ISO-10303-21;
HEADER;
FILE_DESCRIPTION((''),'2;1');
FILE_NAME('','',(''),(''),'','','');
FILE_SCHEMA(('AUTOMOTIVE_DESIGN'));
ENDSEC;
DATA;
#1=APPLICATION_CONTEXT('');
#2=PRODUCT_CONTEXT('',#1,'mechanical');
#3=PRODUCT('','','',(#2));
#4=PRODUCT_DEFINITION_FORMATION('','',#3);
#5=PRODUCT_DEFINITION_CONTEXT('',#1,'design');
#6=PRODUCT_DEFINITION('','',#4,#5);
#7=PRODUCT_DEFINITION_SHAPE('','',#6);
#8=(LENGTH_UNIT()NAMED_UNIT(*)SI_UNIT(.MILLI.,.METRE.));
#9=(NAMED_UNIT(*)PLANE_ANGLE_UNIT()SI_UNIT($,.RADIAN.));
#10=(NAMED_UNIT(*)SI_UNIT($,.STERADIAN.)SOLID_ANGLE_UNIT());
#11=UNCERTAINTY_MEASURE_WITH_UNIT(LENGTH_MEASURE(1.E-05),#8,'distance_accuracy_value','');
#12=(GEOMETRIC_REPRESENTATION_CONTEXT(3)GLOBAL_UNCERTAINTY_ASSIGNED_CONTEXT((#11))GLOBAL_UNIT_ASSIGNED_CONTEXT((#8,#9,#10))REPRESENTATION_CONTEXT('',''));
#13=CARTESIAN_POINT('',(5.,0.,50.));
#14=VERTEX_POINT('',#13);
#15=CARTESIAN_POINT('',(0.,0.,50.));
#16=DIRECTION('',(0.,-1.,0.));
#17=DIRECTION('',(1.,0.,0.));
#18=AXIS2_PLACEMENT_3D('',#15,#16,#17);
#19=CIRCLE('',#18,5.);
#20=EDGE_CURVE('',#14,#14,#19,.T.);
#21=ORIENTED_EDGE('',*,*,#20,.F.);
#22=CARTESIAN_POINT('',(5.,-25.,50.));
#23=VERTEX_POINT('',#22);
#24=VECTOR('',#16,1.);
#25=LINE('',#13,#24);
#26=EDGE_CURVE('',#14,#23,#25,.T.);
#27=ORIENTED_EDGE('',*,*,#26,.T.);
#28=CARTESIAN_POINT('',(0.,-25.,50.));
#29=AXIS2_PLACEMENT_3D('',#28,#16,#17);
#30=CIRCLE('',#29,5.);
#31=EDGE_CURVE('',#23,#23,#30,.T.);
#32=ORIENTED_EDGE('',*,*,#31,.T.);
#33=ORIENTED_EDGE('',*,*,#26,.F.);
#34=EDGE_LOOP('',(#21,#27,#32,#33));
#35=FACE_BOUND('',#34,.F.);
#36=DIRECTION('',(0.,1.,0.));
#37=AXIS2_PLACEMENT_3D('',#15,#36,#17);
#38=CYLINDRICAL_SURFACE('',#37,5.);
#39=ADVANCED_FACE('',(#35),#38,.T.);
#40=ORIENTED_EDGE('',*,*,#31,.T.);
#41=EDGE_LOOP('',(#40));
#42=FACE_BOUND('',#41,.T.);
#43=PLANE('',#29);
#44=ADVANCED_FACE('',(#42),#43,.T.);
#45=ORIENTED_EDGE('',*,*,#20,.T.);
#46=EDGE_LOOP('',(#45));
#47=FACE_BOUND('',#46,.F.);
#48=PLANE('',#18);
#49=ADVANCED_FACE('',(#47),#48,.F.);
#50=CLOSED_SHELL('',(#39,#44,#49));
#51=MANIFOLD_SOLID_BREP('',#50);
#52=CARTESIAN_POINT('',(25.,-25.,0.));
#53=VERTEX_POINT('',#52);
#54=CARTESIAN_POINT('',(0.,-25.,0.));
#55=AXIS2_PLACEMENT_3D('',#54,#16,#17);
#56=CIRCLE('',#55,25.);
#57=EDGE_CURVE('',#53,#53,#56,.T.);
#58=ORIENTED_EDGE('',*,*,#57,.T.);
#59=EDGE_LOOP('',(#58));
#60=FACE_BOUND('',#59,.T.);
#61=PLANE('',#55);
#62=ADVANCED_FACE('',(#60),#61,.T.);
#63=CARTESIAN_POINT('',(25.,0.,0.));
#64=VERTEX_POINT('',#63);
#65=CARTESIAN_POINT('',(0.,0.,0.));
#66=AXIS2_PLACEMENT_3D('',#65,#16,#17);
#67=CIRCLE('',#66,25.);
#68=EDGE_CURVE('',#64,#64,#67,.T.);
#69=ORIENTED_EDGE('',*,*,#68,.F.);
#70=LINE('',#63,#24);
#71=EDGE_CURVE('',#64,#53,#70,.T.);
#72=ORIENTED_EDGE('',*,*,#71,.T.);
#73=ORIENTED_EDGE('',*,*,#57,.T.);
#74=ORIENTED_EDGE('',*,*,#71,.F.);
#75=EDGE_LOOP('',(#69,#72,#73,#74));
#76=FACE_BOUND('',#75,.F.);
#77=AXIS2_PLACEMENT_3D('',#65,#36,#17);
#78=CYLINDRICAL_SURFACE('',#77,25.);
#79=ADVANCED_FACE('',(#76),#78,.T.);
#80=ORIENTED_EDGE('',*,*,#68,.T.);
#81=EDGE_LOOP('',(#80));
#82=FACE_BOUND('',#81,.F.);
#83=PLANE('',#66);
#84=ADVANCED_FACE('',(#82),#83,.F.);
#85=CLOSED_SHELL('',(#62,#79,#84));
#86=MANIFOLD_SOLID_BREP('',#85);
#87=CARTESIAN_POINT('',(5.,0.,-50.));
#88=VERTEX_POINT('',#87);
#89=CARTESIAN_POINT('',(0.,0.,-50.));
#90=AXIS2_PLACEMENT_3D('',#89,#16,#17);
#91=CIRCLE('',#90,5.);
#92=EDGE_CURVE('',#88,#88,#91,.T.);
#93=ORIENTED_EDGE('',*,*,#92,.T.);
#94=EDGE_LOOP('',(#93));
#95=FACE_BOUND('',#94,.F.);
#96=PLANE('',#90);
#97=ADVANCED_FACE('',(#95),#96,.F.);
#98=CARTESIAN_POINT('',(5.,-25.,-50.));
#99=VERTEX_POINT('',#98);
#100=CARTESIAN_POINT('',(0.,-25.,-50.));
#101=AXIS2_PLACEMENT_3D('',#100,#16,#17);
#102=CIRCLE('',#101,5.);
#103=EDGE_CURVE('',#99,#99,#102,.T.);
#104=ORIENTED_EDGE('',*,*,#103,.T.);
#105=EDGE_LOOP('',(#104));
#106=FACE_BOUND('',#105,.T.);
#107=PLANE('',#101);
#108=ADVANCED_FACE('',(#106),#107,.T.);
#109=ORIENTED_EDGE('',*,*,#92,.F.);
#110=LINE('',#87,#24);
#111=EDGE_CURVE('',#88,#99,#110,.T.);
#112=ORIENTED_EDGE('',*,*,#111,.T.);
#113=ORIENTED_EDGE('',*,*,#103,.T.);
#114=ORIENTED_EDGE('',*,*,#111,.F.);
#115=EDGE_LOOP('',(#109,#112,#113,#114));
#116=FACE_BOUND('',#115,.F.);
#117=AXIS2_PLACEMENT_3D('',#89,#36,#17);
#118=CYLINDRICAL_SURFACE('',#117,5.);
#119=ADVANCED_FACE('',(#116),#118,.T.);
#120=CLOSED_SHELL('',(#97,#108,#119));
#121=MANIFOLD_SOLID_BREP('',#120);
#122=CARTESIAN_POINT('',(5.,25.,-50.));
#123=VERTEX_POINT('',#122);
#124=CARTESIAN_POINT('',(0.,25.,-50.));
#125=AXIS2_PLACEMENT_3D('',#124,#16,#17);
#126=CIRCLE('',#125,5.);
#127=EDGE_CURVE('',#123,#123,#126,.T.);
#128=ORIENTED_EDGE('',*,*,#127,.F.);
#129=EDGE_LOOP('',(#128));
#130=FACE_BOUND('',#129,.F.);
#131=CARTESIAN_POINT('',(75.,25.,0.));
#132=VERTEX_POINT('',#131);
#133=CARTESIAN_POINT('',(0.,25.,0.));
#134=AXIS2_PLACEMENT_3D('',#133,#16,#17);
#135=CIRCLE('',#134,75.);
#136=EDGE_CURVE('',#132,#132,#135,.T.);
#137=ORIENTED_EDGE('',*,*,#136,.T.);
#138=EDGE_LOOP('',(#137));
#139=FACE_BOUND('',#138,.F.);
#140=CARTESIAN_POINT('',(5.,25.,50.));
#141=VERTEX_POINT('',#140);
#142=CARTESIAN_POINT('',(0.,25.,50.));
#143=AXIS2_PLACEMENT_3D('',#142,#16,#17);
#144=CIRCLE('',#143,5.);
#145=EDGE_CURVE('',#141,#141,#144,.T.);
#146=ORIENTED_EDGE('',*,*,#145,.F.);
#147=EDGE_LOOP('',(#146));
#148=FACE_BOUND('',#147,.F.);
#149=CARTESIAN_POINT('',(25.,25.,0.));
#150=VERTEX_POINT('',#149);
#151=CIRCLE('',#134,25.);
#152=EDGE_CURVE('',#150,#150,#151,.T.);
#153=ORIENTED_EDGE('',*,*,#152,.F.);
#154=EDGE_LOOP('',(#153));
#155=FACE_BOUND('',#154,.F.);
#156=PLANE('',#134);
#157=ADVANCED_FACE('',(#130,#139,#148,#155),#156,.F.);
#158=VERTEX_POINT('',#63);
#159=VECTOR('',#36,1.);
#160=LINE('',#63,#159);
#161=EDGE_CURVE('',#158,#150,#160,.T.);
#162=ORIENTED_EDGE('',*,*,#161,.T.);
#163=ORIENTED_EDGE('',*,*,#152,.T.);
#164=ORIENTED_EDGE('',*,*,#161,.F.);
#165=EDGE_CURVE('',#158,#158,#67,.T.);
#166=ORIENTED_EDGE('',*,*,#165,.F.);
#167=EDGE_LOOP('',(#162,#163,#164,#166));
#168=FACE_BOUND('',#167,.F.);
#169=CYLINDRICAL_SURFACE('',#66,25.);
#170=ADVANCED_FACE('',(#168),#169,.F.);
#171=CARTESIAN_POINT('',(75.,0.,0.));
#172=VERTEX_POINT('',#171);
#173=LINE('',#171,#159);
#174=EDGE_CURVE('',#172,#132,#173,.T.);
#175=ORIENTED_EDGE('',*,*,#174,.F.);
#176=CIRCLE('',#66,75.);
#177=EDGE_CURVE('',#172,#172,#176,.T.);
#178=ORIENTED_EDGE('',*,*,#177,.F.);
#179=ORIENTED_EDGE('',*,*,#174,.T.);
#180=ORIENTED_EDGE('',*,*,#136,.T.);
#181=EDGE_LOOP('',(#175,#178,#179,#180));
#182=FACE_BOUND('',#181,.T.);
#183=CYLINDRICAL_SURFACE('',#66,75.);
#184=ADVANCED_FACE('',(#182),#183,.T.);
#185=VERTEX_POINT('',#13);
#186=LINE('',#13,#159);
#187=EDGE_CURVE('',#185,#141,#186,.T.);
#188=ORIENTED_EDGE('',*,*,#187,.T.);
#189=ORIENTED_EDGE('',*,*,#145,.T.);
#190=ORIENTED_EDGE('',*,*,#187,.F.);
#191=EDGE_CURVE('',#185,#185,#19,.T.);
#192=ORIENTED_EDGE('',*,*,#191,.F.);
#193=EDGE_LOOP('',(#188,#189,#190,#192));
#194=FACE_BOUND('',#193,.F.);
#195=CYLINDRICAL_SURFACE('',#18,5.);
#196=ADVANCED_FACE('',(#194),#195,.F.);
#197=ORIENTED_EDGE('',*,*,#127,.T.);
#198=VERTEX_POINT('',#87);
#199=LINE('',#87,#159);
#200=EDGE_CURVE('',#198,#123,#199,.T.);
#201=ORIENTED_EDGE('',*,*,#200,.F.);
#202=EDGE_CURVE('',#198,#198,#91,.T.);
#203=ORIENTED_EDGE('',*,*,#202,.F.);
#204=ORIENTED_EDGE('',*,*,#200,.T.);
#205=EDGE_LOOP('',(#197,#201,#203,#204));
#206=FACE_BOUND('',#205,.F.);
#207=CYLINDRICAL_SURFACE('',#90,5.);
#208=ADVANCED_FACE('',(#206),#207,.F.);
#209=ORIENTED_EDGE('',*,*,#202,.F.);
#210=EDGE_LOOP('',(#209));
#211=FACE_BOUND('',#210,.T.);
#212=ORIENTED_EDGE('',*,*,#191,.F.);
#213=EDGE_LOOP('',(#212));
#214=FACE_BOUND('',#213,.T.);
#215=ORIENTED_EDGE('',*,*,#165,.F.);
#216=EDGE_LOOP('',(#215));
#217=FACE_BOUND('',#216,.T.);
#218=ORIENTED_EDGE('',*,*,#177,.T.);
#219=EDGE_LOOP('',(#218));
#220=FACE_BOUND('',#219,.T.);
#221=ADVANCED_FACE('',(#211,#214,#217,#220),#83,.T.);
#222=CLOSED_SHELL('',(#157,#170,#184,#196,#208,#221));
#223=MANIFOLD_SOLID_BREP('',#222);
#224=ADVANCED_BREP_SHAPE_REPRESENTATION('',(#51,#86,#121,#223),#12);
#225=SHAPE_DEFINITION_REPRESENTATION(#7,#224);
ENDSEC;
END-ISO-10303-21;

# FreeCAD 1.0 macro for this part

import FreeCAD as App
import Part
import Sketcher
from FreeCAD import Vector

doc = App.newDocument("Part")
params = doc.addObject("Spreadsheet::Sheet", "Params")
for row, (alias, value) in enumerate([
    ("sketch1_diameter", "10 mm"),
    ("sketch1_diameter2", "50 mm"),
    ("pad1_length", "25 mm"),
    ("sketch2_diameter", "150 mm"),
    ("sketch2_diameter2", "10 mm"),
    ("sketch2_diameter3", "50 mm"),
    ("pad2_length", "25 mm"),
], start=1):
    params.set(f"A{row}", alias)
    params.set(f"B{row}", "=" + value)
    params.setAlias(f"B{row}", alias)

body = doc.addObject("PartDesign::Body", "Body")
body.AllowCompound = True

sketch1 = doc.addObject("Sketcher::SketchObject", "Sketch")
body.addObject(sketch1)
sketch1.AttachmentSupport = (doc.XZ_Plane, [""])
sketch1.MapMode = "FlatFace"
sketch1.addGeometry(Part.Circle(Vector(0, 50, 0), Vector(0, 0, 1), 5), False)
sketch1.addGeometry(Part.Circle(Vector(0, 0, 0), Vector(0, 0, 1), 25), False)
sketch1.addGeometry(Part.Circle(Vector(0, -50, 0), Vector(0, 0, 1), 5), False)
sketch1.addConstraint(Sketcher.Constraint("Coincident", 1, 3, -1, 1))
sketch1.addConstraint(Sketcher.Constraint("Equal", 0, 2))
sketch1.addConstraint(Sketcher.Constraint("Symmetric", 0, 3, 2, 3, -1, 1))
sketch1.addConstraint(Sketcher.Constraint("PointOnObject", 0, 3, -2))
sketch1.addConstraint(Sketcher.Constraint("Diameter", 0, 10.0))
sketch1.addConstraint(Sketcher.Constraint("Diameter", 1, 50.0))
sketch1.addConstraint(Sketcher.Constraint("DistanceY", -1, 1, 0, 3, 50.0))
sketch1.setExpression("Constraints[4]", "Params.sketch1_diameter")
sketch1.setExpression("Constraints[5]", "Params.sketch1_diameter2")
pad1 = doc.addObject("PartDesign::Pad", "Pad")
body.addObject(pad1)
pad1.Profile = sketch1
pad1.setExpression("Length", "Params.pad1_length")
body2 = doc.addObject("PartDesign::Body", "Body001")

sketch2 = doc.addObject("Sketcher::SketchObject", "Sketch001")
body2.addObject(sketch2)
sketch2.AttachmentSupport = (doc.getObject("XZ_Plane001"), [""])
sketch2.MapMode = "FlatFace"
sketch2.addGeometry(Part.Circle(Vector(0, 0, 0), Vector(0, 0, 1), 75), False)
sketch2.addGeometry(Part.Circle(Vector(0, -50, 0), Vector(0, 0, 1), 5), False)
sketch2.addGeometry(Part.Circle(Vector(0, 0, 0), Vector(0, 0, 1), 25), False)
sketch2.addGeometry(Part.Circle(Vector(0, 50, 0), Vector(0, 0, 1), 5), False)
sketch2.addConstraint(Sketcher.Constraint("Coincident", 0, 3, -1, 1))
sketch2.addConstraint(Sketcher.Constraint("Coincident", 2, 3, -1, 1))
sketch2.addConstraint(Sketcher.Constraint("Equal", 1, 3))
sketch2.addConstraint(Sketcher.Constraint("Symmetric", 1, 3, 3, 3, -1, 1))
sketch2.addConstraint(Sketcher.Constraint("PointOnObject", 1, 3, -2))
sketch2.addConstraint(Sketcher.Constraint("Diameter", 0, 150.0))
sketch2.addConstraint(Sketcher.Constraint("Diameter", 1, 10.0))
sketch2.addConstraint(Sketcher.Constraint("Diameter", 2, 50.0))
sketch2.addConstraint(Sketcher.Constraint("DistanceY", 1, 3, -1, 1, 50.0))
sketch2.setExpression("Constraints[5]", "Params.sketch2_diameter")
sketch2.setExpression("Constraints[6]", "Params.sketch2_diameter2")
sketch2.setExpression("Constraints[7]", "Params.sketch2_diameter3")
pad2 = doc.addObject("PartDesign::Pad", "Pad001")
body2.addObject(pad2)
pad2.Profile = sketch2
pad2.setExpression("Length", "Params.pad2_length")
pad2.Reversed = True

doc.recompute()
